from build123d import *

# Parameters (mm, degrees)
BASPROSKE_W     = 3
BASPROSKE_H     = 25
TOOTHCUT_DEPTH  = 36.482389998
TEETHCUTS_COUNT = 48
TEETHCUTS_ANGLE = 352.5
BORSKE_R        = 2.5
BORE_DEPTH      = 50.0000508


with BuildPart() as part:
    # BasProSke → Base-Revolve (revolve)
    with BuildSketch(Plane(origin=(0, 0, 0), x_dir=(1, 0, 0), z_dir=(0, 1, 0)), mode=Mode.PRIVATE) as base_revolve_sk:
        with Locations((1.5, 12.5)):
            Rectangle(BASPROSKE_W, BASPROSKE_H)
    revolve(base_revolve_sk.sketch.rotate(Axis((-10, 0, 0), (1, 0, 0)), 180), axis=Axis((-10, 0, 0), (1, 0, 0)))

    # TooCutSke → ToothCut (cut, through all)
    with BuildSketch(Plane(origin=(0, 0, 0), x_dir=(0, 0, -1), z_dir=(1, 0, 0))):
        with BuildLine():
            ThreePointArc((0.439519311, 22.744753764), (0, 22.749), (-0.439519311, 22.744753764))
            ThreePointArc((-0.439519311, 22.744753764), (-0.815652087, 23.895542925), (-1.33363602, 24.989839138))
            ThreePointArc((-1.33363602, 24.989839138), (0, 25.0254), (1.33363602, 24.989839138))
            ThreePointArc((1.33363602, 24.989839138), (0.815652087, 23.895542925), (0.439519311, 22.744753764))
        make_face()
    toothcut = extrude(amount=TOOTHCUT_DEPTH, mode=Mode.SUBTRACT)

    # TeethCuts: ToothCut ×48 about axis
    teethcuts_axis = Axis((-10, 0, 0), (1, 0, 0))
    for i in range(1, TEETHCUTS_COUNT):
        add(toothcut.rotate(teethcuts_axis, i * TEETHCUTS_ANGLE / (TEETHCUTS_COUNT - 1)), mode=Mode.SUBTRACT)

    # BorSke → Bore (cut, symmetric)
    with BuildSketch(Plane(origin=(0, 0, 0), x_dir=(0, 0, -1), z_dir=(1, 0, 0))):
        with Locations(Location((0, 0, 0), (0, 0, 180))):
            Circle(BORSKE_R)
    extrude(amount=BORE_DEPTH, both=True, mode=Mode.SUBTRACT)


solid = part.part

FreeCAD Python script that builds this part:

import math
import FreeCAD as App
import Part
import Sketcher

V = App.Vector

doc = App.newDocument("Part")
body = doc.addObject("PartDesign::Body", "Body")

sketch1 = body.newObject("Sketcher::SketchObject", "Sketch")
sketch1.AttachmentSupport = (doc.getObject("XZ_Plane"), [""])
sketch1.MapMode = "FlatFace"
sketch1.addGeometry([
    Part.LineSegment(V(0, -25, 0), V(0, 0, 0)),
    Part.LineSegment(V(0, 0, 0), V(3, 0, 0)),
    Part.LineSegment(V(3, 0, 0), V(3, -25, 0)),
    Part.LineSegment(V(3, -25, 0), V(0, -25, 0)),
], False)
sketch1.addConstraint([
    Sketcher.Constraint("Coincident", 0, 2, 1, 1),
    Sketcher.Constraint("Coincident", 1, 2, 2, 1),
    Sketcher.Constraint("Coincident", 2, 2, 3, 1),
    Sketcher.Constraint("Coincident", 3, 2, 0, 1),
    Sketcher.Constraint("Vertical", 0),
    Sketcher.Constraint("Horizontal", 1),
    Sketcher.Constraint("Vertical", 2),
    Sketcher.Constraint("Horizontal", 3),
    Sketcher.Constraint("Coincident", 0, 2, -1, 1),
    Sketcher.Constraint("DistanceX", 1, 1, 1, 2, 3.0),
    Sketcher.Constraint("DistanceY", 0, 1, 0, 2, 25.0),
])
revolution = body.newObject("PartDesign::Revolution", "Revolution")
revolution.Profile = sketch1
revolution.ReferenceAxis = (sketch1, ["H_Axis"])
revolution.Angle = 360

sketch2 = body.newObject("Sketcher::SketchObject", "Sketch001")
sketch2.AttachmentSupport = (doc.getObject("YZ_Plane"), [""])
sketch2.MapMode = "FlatFace"
sketch2.addGeometry([
    Part.ArcOfCircle(Part.Circle(V(0, 0, 0), V(0, 0, 1), 22.7), math.radians(-1.11), math.radians(1.11)),
    Part.ArcOfCircle(Part.Circle(V(20.3, -9.7, 0), V(0, 0, 1), 9.6), math.radians(61.05), math.radians(75.52)),
    Part.ArcOfCircle(Part.Circle(V(0, 0, 0), V(0, 0, 1), 25), math.radians(-3.05), math.radians(3.05)),
    Part.ArcOfCircle(Part.Circle(V(20.3, 9.7, 0), V(0, 0, 1), 9.6), math.radians(-75.52), math.radians(-61.05)),
], False)
sketch2.addConstraint([
    Sketcher.Constraint("Coincident", 0, 1, 1, 2),
    Sketcher.Constraint("Coincident", 1, 1, 2, 1),
    Sketcher.Constraint("Coincident", 2, 2, 3, 2),
    Sketcher.Constraint("Coincident", 3, 1, 0, 2),
    Sketcher.Constraint("Coincident", 0, 3, -1, 1),
    Sketcher.Constraint("Coincident", 2, 3, -1, 1),
    Sketcher.Constraint("Equal", 1, 3),
    Sketcher.Constraint("Symmetric", 1, 3, 3, 3, -1),
    Sketcher.Constraint("Radius", 1, 9.6),
    Sketcher.Constraint("Radius", 0, 22.749001),
    Sketcher.Constraint("Radius", 2, 25.0254),
    Sketcher.Constraint("DistanceY", 0, 1, -1, 1, 0.439519),
    Sketcher.Constraint("DistanceX", -1, 1, 2, 2, 24.989839),
])
pocket1 = body.newObject("PartDesign::Pocket", "Pocket")
pocket1.Profile = sketch2
pocket1.Type = "ThroughAll"
pocket1.Reversed = True
doc.recompute()

polarpattern = body.newObject("PartDesign::PolarPattern", "PolarPattern")
polarpattern.Originals = [pocket1]
polarpattern.Axis = (doc.getObject("X_Axis"), [""])
polarpattern.Angle = 360
polarpattern.Occurrences = 48
body.Tip = polarpattern

sketch3 = body.newObject("Sketcher::SketchObject", "Sketch002")
sketch3.AttachmentSupport = (doc.getObject("YZ_Plane"), [""])
sketch3.MapMode = "FlatFace"
sketch3.addGeometry(Part.Circle(V(0, 0, 0), V(0, 0, 1), 2.5), False)
sketch3.addConstraint([
    Sketcher.Constraint("Coincident", 0, 3, -1, 1),
    Sketcher.Constraint("Diameter", 0, 5.0),
])
pocket2 = body.newObject("PartDesign::Pocket", "Pocket001")
pocket2.Profile = sketch3
pocket2.Length = 100.000102
pocket2.Midplane = True

doc.recompute()
